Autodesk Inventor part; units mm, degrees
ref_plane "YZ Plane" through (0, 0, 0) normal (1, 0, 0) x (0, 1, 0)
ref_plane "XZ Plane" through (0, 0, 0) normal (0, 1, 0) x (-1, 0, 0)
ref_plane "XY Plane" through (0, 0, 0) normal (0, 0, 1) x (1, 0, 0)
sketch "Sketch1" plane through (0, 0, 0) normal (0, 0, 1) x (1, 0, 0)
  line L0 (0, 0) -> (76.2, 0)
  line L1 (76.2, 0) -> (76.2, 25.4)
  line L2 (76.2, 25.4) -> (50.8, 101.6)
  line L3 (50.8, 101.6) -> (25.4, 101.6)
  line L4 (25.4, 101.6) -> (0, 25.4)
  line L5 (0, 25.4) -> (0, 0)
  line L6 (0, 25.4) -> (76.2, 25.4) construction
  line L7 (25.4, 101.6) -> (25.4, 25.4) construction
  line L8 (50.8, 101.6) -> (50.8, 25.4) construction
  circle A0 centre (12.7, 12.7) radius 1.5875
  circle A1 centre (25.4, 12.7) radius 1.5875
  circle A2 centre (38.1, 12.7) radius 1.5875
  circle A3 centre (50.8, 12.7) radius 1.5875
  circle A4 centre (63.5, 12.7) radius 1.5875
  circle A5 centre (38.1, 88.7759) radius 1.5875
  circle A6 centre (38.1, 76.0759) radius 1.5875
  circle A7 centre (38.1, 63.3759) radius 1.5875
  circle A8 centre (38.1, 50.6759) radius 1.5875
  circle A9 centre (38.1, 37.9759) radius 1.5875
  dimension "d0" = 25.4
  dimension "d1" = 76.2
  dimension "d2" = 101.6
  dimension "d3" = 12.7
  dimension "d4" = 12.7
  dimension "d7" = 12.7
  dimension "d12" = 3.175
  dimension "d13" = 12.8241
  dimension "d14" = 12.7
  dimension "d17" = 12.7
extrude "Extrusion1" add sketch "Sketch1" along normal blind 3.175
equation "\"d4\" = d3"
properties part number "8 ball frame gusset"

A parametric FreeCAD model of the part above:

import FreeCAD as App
import Part
import Sketcher
from FreeCAD import Vector
Q = App.Units.Quantity

doc = App.newDocument("Part")
body = doc.addObject("PartDesign::Body", "Body")

# Sketch on XY plane
sketch1 = body.newObject("Sketcher::SketchObject", "Sketch")
sketch1.AttachmentSupport = (doc.getObject("XY_Plane"), [""])
sketch1.MapMode = "FlatFace"
sketch1.addGeometry(Part.LineSegment(Vector(0, 25.4, 0), Vector(0, 0, 0)), False)
sketch1.addGeometry(Part.LineSegment(Vector(0, 0, 0), Vector(76.2, 0, 0)), False)
sketch1.addGeometry(Part.LineSegment(Vector(76.2, 0, 0), Vector(76.2, 25.4, 0)), False)
sketch1.addGeometry(Part.LineSegment(Vector(76.2, 25.4, 0), Vector(50.8, 101.6, 0)), False)
sketch1.addGeometry(Part.LineSegment(Vector(50.8, 101.6, 0), Vector(25.4, 101.6, 0)), False)
sketch1.addGeometry(Part.LineSegment(Vector(25.4, 101.6, 0), Vector(0, 25.4, 0)), False)
sketch1.addGeometry(Part.Circle(Vector(12.7, 12.7, 0), Vector(0, 0, 1), 1.6), False)
sketch1.addGeometry(Part.Circle(Vector(25.4, 12.7, 0), Vector(0, 0, 1), 1.6), False)
sketch1.addGeometry(Part.Circle(Vector(38.1, 12.7, 0), Vector(0, 0, 1), 1.6), False)
sketch1.addGeometry(Part.Circle(Vector(50.8, 12.7, 0), Vector(0, 0, 1), 1.6), False)
sketch1.addGeometry(Part.Circle(Vector(63.5, 12.7, 0), Vector(0, 0, 1), 1.6), False)
sketch1.addGeometry(Part.Circle(Vector(38.1, 38, 0), Vector(0, 0, 1), 1.6), False)
sketch1.addGeometry(Part.Circle(Vector(38.1, 50.7, 0), Vector(0, 0, 1), 1.6), False)
sketch1.addGeometry(Part.Circle(Vector(38.1, 63.4, 0), Vector(0, 0, 1), 1.6), False)
sketch1.addGeometry(Part.Circle(Vector(38.1, 76.1, 0), Vector(0, 0, 1), 1.6), False)
sketch1.addGeometry(Part.Circle(Vector(38.1, 88.8, 0), Vector(0, 0, 1), 1.6), False)
sketch1.addConstraint(Sketcher.Constraint("Coincident", 0, 2, 1, 1))
sketch1.addConstraint(Sketcher.Constraint("Coincident", 1, 2, 2, 1))
sketch1.addConstraint(Sketcher.Constraint("Coincident", 2, 2, 3, 1))
sketch1.addConstraint(Sketcher.Constraint("Coincident", 3, 2, 4, 1))
sketch1.addConstraint(Sketcher.Constraint("Coincident", 4, 2, 5, 1))
sketch1.addConstraint(Sketcher.Constraint("Coincident", 5, 2, 0, 1))
sketch1.addConstraint(Sketcher.Constraint("Vertical", 0))
sketch1.addConstraint(Sketcher.Constraint("Horizontal", 1))
sketch1.addConstraint(Sketcher.Constraint("Vertical", 2))
sketch1.addConstraint(Sketcher.Constraint("Horizontal", 4))
sketch1.addConstraint(Sketcher.Constraint("Coincident", 0, 2, -1, 1))
sketch1.addConstraint(Sketcher.Constraint("Equal", 6, 7))
sketch1.addConstraint(Sketcher.Constraint("Equal", 7, 8))
sketch1.addConstraint(Sketcher.Constraint("Equal", 8, 9))
sketch1.addConstraint(Sketcher.Constraint("Equal", 9, 10))
sketch1.addConstraint(Sketcher.Constraint("Equal", 10, 11))
sketch1.addConstraint(Sketcher.Constraint("Equal", 11, 12))
sketch1.addConstraint(Sketcher.Constraint("Equal", 12, 13))
sketch1.addConstraint(Sketcher.Constraint("Equal", 13, 14))
sketch1.addConstraint(Sketcher.Constraint("Equal", 14, 15))
sketch1.addConstraint(Sketcher.Constraint("Horizontal", 6, 3, 7, 3))
sketch1.addConstraint(Sketcher.Constraint("Horizontal", 7, 3, 8, 3))
sketch1.addConstraint(Sketcher.Constraint("Horizontal", 8, 3, 9, 3))
sketch1.addConstraint(Sketcher.Constraint("Horizontal", 9, 3, 10, 3))
sketch1.addConstraint(Sketcher.Constraint("Horizontal", 2, 2, 5, 2))
sketch1.addConstraint(Sketcher.Constraint("Vertical", 8, 3, 11, 3))
sketch1.addConstraint(Sketcher.Constraint("Vertical", 11, 3, 12, 3))
sketch1.addConstraint(Sketcher.Constraint("Vertical", 12, 3, 13, 3))
sketch1.addConstraint(Sketcher.Constraint("Vertical", 13, 3, 14, 3))
sketch1.addConstraint(Sketcher.Constraint("Vertical", 14, 3, 15, 3))
sketch1.addConstraint(Sketcher.Constraint("Vertical", 9, 3, 3, 2))
sketch1.addConstraint(Sketcher.Constraint("Vertical", 7, 3, 4, 2))
sketch1.addConstraint(Sketcher.Constraint("Equal", 4, 0))
sketch1.addConstraint(Sketcher.Constraint("Equal", 3, 5))
sketch1.addConstraint(Sketcher.Constraint("DistanceX", 1, 1, 1, 2, Q("3 in")))
sketch1.addConstraint(Sketcher.Constraint("DistanceX", 4, 2, 4, 1, Q("1 in")))
sketch1.addConstraint(Sketcher.Constraint("Diameter", 6, Q("0.125 in")))
sketch1.addConstraint(Sketcher.Constraint("DistanceY", -1, 1, 3, 2, Q("4 in")))
sketch1.addConstraint(Sketcher.Constraint("DistanceX", 6, 3, 8, 3, Q("1 in")))
sketch1.addConstraint(Sketcher.Constraint("DistanceX", 8, 3, 10, 3, Q("1 in")))
sketch1.addConstraint(Sketcher.Constraint("DistanceY", 11, 3, 13, 3, Q("1 in")))
sketch1.addConstraint(Sketcher.Constraint("DistanceY", 12, 3, 14, 3, Q("1 in")))
sketch1.addConstraint(Sketcher.Constraint("DistanceY", 13, 3, 15, 3, Q("1 in")))
sketch1.addConstraint(Sketcher.Constraint("DistanceX", -1, 1, 6, 3, Q("0.5 in")))
sketch1.addConstraint(Sketcher.Constraint("DistanceY", -1, 1, 6, 3, Q("0.5 in")))
sketch1.addConstraint(Sketcher.Constraint("DistanceY", 11, 3, 12, 3, Q("0.5 in")))
sketch1.addConstraint(Sketcher.Constraint("DistanceY", 15, 3, 3, 2, Q("12.824 mm")))
pad1 = body.newObject("PartDesign::Pad", "Pad")
pad1.Profile = sketch1
pad1.Length = Q("0.125 in")

doc.recompute()
